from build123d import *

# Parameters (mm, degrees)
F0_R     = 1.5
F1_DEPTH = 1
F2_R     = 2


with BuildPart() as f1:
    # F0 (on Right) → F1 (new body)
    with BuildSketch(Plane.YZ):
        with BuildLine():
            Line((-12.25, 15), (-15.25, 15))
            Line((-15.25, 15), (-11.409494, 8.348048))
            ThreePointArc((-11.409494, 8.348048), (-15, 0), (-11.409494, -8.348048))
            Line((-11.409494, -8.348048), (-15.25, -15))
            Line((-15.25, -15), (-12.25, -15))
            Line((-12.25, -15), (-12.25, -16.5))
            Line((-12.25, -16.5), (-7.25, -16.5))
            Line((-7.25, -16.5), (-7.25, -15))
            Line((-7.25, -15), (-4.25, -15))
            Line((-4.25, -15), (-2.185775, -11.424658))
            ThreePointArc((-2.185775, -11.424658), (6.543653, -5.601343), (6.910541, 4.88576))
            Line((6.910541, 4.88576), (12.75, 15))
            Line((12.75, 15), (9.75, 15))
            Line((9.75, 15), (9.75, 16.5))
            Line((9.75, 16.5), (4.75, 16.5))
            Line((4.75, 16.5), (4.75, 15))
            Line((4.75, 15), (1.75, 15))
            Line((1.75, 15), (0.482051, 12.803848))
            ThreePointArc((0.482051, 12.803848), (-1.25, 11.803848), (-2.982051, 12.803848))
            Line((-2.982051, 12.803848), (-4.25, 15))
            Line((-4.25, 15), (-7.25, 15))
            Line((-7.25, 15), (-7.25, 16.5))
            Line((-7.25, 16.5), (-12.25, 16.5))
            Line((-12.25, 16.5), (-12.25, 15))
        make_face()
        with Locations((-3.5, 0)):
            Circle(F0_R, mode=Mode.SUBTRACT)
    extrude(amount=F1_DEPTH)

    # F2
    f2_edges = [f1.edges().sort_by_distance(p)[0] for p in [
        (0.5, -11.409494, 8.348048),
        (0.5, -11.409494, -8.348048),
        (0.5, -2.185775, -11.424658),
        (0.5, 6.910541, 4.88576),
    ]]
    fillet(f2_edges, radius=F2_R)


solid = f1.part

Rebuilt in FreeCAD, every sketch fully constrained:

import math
import FreeCAD as App
import Part
import Sketcher
Q = App.Units.Quantity


def edges_at(feature, points):
    """Names of the edges that pass closest to the given points."""
    edges = feature.Shape.Edges
    near = lambda p: min(range(len(edges)), key=lambda i: edges[i].distToShape(Part.Vertex(*p))[0])
    return sorted({f"Edge{near(p) + 1}" for p in points})

doc = App.newDocument("Part")
params = doc.addObject("Spreadsheet::Sheet", "Params")
for row, (alias, value) in enumerate([
    ("sketch1_diameter", "3 mm"),
    ("sketch1_radius", "2 mm"),
    ("sketch1_radius2", "11.5 mm"),
    ("sketch1_width", "3 mm"),
    ("sketch1_width2", "5 mm"),
    ("pad1_length", "1 mm"),
    ("fillet_radius", "2 mm"),
], start=1):
    params.set(f"A{row}", alias)
    params.set(f"B{row}", "=" + value)
    params.setAlias(f"B{row}", alias)

body = doc.addObject("PartDesign::Body", "Body")

sketch1 = body.newObject("Sketcher::SketchObject", "Sketch")
sketch1.AttachmentSupport = (doc.getObject("YZ_Plane"), [""])
sketch1.MapMode = "FlatFace"
sketch1.addGeometry(Part.LineSegment(App.Vector(-12.2, 15, 0), App.Vector(-15.2, 15, 0)), False)
sketch1.addGeometry(Part.LineSegment(App.Vector(-15.2, 15, 0), App.Vector(-11.4, 8.3, 0)), False)
sketch1.addGeometry(Part.ArcOfCircle(Part.Circle(App.Vector(-3.5, 0, 0), App.Vector(0, 0, 1), 11.5), math.radians(133), math.radians(227)), False)
sketch1.addGeometry(Part.LineSegment(App.Vector(-11.4, -8.3, 0), App.Vector(-15.2, -15, 0)), False)
sketch1.addGeometry(Part.LineSegment(App.Vector(-15.2, -15, 0), App.Vector(-12.2, -15, 0)), False)
sketch1.addGeometry(Part.LineSegment(App.Vector(-12.2, -15, 0), App.Vector(-12.2, -16.5, 0)), False)
sketch1.addGeometry(Part.LineSegment(App.Vector(-12.2, -16.5, 0), App.Vector(-7.2, -16.5, 0)), False)
sketch1.addGeometry(Part.LineSegment(App.Vector(-7.2, -16.5, 0), App.Vector(-7.2, -15, 0)), False)
sketch1.addGeometry(Part.LineSegment(App.Vector(-7.2, -15, 0), App.Vector(-4.2, -15, 0)), False)
sketch1.addGeometry(Part.LineSegment(App.Vector(-4.2, -15, 0), App.Vector(-2.2, -11.4, 0)), False)
sketch1.addGeometry(Part.ArcOfCircle(Part.Circle(App.Vector(-3.5, 0, 0), App.Vector(0, 0, 1), 11.5), math.radians(-83), math.radians(25)), False)
sketch1.addGeometry(Part.LineSegment(App.Vector(6.9, 4.9, 0), App.Vector(12.8, 15, 0)), False)
sketch1.addGeometry(Part.LineSegment(App.Vector(12.8, 15, 0), App.Vector(9.8, 15, 0)), False)
sketch1.addGeometry(Part.LineSegment(App.Vector(9.8, 15, 0), App.Vector(9.8, 16.5, 0)), False)
sketch1.addGeometry(Part.LineSegment(App.Vector(9.8, 16.5, 0), App.Vector(4.8, 16.5, 0)), False)
sketch1.addGeometry(Part.LineSegment(App.Vector(4.8, 16.5, 0), App.Vector(4.8, 15, 0)), False)
sketch1.addGeometry(Part.LineSegment(App.Vector(4.8, 15, 0), App.Vector(1.8, 15, 0)), False)
sketch1.addGeometry(Part.LineSegment(App.Vector(1.8, 15, 0), App.Vector(0.5, 12.8, 0)), False)
sketch1.addGeometry(Part.ArcOfCircle(Part.Circle(App.Vector(-1.2, 13.8, 0), App.Vector(0, 0, 1), 2), math.radians(-150), math.radians(-30)), False)
sketch1.addGeometry(Part.LineSegment(App.Vector(-3, 12.8, 0), App.Vector(-4.2, 15, 0)), False)
sketch1.addGeometry(Part.LineSegment(App.Vector(-4.2, 15, 0), App.Vector(-7.2, 15, 0)), False)
sketch1.addGeometry(Part.LineSegment(App.Vector(-7.2, 15, 0), App.Vector(-7.2, 16.5, 0)), False)
sketch1.addGeometry(Part.LineSegment(App.Vector(-7.2, 16.5, 0), App.Vector(-12.2, 16.5, 0)), False)
sketch1.addGeometry(Part.LineSegment(App.Vector(-12.2, 16.5, 0), App.Vector(-12.2, 15, 0)), False)
sketch1.addGeometry(Part.Circle(App.Vector(-3.5, 0, 0), App.Vector(0, 0, 1), 1.5), False)
sketch1.addConstraint(Sketcher.Constraint("Coincident", 0, 2, 1, 1))
sketch1.addConstraint(Sketcher.Constraint("Coincident", 1, 2, 2, 1))
sketch1.addConstraint(Sketcher.Constraint("Coincident", 2, 2, 3, 1))
sketch1.addConstraint(Sketcher.Constraint("Coincident", 3, 2, 4, 1))
sketch1.addConstraint(Sketcher.Constraint("Coincident", 4, 2, 5, 1))
sketch1.addConstraint(Sketcher.Constraint("Coincident", 5, 2, 6, 1))
sketch1.addConstraint(Sketcher.Constraint("Coincident", 6, 2, 7, 1))
sketch1.addConstraint(Sketcher.Constraint("Coincident", 7, 2, 8, 1))
sketch1.addConstraint(Sketcher.Constraint("Coincident", 8, 2, 9, 1))
sketch1.addConstraint(Sketcher.Constraint("Coincident", 9, 2, 10, 1))
sketch1.addConstraint(Sketcher.Constraint("Coincident", 10, 2, 11, 1))
sketch1.addConstraint(Sketcher.Constraint("Coincident", 11, 2, 12, 1))
sketch1.addConstraint(Sketcher.Constraint("Coincident", 12, 2, 13, 1))
sketch1.addConstraint(Sketcher.Constraint("Coincident", 13, 2, 14, 1))
sketch1.addConstraint(Sketcher.Constraint("Coincident", 14, 2, 15, 1))
sketch1.addConstraint(Sketcher.Constraint("Coincident", 15, 2, 16, 1))
sketch1.addConstraint(Sketcher.Constraint("Coincident", 16, 2, 17, 1))
sketch1.addConstraint(Sketcher.Constraint("Tangent", 17, 2, 18, 2))
sketch1.addConstraint(Sketcher.Constraint("Tangent", 18, 1, 19, 1))
sketch1.addConstraint(Sketcher.Constraint("Coincident", 19, 2, 20, 1))
sketch1.addConstraint(Sketcher.Constraint("Coincident", 20, 2, 21, 1))
sketch1.addConstraint(Sketcher.Constraint("Coincident", 21, 2, 22, 1))
sketch1.addConstraint(Sketcher.Constraint("Coincident", 22, 2, 23, 1))
sketch1.addConstraint(Sketcher.Constraint("Coincident", 23, 2, 0, 1))
sketch1.addConstraint(Sketcher.Constraint("Horizontal", 0))
sketch1.addConstraint(Sketcher.Constraint("Horizontal", 4))
sketch1.addConstraint(Sketcher.Constraint("Vertical", 5))
sketch1.addConstraint(Sketcher.Constraint("Horizontal", 6))
sketch1.addConstraint(Sketcher.Constraint("Vertical", 7))
sketch1.addConstraint(Sketcher.Constraint("Horizontal", 8))
sketch1.addConstraint(Sketcher.Constraint("Horizontal", 12))
sketch1.addConstraint(Sketcher.Constraint("Vertical", 13))
sketch1.addConstraint(Sketcher.Constraint("Horizontal", 14))
sketch1.addConstraint(Sketcher.Constraint("Vertical", 15))
sketch1.addConstraint(Sketcher.Constraint("Horizontal", 16))
sketch1.addConstraint(Sketcher.Constraint("Horizontal", 20))
sketch1.addConstraint(Sketcher.Constraint("Vertical", 21))
sketch1.addConstraint(Sketcher.Constraint("Horizontal", 22))
sketch1.addConstraint(Sketcher.Constraint("Vertical", 23))
sketch1.addConstraint(Sketcher.Constraint("Coincident", 10, 3, 2, 3))
sketch1.addConstraint(Sketcher.Constraint("Coincident", 24, 3, 2, 3))
sketch1.addConstraint(Sketcher.Constraint("Equal", 2, 10))
sketch1.addConstraint(Sketcher.Constraint("Symmetric", 1, 2, 2, 2, -1))
sketch1.addConstraint(Sketcher.Constraint("Symmetric", 0, 2, 3, 2, -1))
sketch1.addConstraint(Sketcher.Constraint("Symmetric", 8, 2, 19, 2, -1))
sketch1.addConstraint(Sketcher.Constraint("Symmetric", 6, 2, 21, 2, -1))
sketch1.addConstraint(Sketcher.Constraint("Parallel", 3, 9))
sketch1.addConstraint(Sketcher.Constraint("Parallel", 9, 11))
sketch1.addConstraint(Sketcher.Constraint("Parallel", 11, 17))
sketch1.addConstraint(Sketcher.Constraint("Parallel", 1, 19))
sketch1.addConstraint(Sketcher.Constraint("Horizontal", 4, 2, 7, 2))
sketch1.addConstraint(Sketcher.Constraint("Horizontal", 0, 2, 11, 2))
sketch1.addConstraint(Sketcher.Constraint("Horizontal", 12, 2, 15, 2))
sketch1.addConstraint(Sketcher.Constraint("Horizontal", 14, 2, 21, 2))
sketch1.addConstraint(Sketcher.Constraint("Vertical", 5, 2, 22, 2))
sketch1.addConstraint(Sketcher.Constraint("Equal", 4, 8))
sketch1.addConstraint(Sketcher.Constraint("Equal", 8, 12))
sketch1.addConstraint(Sketcher.Constraint("Equal", 6, 14))
sketch1.addConstraint(Sketcher.Constraint("Equal", 12, 16))
sketch1.addConstraint(Sketcher.Constraint("Diameter", 24, Q("3 mm")))
sketch1.addConstraint(Sketcher.Constraint("Radius", 18, Q("2 mm")))
sketch1.addConstraint(Sketcher.Constraint("Radius", 2, Q("11.5 mm")))
sketch1.addConstraint(Sketcher.Constraint("DistanceX", 0, 2, 0, 1, Q("3 mm")))
sketch1.addConstraint(Sketcher.Constraint("DistanceX", 6, 1, 6, 2, Q("5 mm")))
sketch1.addConstraint(Sketcher.Constraint("Angle", 1, Q("-60.000002 deg")))
sketch1.addConstraint(Sketcher.Constraint("DistanceY", 5, 2, 5, 1, Q("1.5 mm")))
sketch1.addConstraint(Sketcher.Constraint("DistanceY", -1, 1, 0, 2, Q("15 mm")))
sketch1.addConstraint(Sketcher.Constraint("DistanceX", 0, 2, 18, 3, Q("14 mm")))
sketch1.addConstraint(Sketcher.Constraint("DistanceX", 2, 3, -1, 1, Q("3.5 mm")))
sketch1.addConstraint(Sketcher.Constraint("DistanceX", 18, 3, -1, 1, Q("1.25 mm")))
sketch1.setExpression("Constraints[59]", "Params.sketch1_diameter")
sketch1.setExpression("Constraints[60]", "Params.sketch1_radius")
sketch1.setExpression("Constraints[61]", "Params.sketch1_radius2")
sketch1.setExpression("Constraints[62]", "Params.sketch1_width")
sketch1.setExpression("Constraints[63]", "Params.sketch1_width2")
pad1 = body.newObject("PartDesign::Pad", "Pad")
pad1.Profile = sketch1
pad1.setExpression("Length", "Params.pad1_length")
doc.recompute()

fillet = body.newObject("PartDesign::Fillet", "Fillet")
fillet.Base = (pad1, edges_at(pad1, [
    (0.5, -11.409, 8.348),
    (0.5, -11.409, -8.348),
    (0.5, -2.186, -11.425),
    (0.5, 6.911, 4.886),
]))
fillet.setExpression("Radius", "Params.fillet_radius")

doc.recompute()
